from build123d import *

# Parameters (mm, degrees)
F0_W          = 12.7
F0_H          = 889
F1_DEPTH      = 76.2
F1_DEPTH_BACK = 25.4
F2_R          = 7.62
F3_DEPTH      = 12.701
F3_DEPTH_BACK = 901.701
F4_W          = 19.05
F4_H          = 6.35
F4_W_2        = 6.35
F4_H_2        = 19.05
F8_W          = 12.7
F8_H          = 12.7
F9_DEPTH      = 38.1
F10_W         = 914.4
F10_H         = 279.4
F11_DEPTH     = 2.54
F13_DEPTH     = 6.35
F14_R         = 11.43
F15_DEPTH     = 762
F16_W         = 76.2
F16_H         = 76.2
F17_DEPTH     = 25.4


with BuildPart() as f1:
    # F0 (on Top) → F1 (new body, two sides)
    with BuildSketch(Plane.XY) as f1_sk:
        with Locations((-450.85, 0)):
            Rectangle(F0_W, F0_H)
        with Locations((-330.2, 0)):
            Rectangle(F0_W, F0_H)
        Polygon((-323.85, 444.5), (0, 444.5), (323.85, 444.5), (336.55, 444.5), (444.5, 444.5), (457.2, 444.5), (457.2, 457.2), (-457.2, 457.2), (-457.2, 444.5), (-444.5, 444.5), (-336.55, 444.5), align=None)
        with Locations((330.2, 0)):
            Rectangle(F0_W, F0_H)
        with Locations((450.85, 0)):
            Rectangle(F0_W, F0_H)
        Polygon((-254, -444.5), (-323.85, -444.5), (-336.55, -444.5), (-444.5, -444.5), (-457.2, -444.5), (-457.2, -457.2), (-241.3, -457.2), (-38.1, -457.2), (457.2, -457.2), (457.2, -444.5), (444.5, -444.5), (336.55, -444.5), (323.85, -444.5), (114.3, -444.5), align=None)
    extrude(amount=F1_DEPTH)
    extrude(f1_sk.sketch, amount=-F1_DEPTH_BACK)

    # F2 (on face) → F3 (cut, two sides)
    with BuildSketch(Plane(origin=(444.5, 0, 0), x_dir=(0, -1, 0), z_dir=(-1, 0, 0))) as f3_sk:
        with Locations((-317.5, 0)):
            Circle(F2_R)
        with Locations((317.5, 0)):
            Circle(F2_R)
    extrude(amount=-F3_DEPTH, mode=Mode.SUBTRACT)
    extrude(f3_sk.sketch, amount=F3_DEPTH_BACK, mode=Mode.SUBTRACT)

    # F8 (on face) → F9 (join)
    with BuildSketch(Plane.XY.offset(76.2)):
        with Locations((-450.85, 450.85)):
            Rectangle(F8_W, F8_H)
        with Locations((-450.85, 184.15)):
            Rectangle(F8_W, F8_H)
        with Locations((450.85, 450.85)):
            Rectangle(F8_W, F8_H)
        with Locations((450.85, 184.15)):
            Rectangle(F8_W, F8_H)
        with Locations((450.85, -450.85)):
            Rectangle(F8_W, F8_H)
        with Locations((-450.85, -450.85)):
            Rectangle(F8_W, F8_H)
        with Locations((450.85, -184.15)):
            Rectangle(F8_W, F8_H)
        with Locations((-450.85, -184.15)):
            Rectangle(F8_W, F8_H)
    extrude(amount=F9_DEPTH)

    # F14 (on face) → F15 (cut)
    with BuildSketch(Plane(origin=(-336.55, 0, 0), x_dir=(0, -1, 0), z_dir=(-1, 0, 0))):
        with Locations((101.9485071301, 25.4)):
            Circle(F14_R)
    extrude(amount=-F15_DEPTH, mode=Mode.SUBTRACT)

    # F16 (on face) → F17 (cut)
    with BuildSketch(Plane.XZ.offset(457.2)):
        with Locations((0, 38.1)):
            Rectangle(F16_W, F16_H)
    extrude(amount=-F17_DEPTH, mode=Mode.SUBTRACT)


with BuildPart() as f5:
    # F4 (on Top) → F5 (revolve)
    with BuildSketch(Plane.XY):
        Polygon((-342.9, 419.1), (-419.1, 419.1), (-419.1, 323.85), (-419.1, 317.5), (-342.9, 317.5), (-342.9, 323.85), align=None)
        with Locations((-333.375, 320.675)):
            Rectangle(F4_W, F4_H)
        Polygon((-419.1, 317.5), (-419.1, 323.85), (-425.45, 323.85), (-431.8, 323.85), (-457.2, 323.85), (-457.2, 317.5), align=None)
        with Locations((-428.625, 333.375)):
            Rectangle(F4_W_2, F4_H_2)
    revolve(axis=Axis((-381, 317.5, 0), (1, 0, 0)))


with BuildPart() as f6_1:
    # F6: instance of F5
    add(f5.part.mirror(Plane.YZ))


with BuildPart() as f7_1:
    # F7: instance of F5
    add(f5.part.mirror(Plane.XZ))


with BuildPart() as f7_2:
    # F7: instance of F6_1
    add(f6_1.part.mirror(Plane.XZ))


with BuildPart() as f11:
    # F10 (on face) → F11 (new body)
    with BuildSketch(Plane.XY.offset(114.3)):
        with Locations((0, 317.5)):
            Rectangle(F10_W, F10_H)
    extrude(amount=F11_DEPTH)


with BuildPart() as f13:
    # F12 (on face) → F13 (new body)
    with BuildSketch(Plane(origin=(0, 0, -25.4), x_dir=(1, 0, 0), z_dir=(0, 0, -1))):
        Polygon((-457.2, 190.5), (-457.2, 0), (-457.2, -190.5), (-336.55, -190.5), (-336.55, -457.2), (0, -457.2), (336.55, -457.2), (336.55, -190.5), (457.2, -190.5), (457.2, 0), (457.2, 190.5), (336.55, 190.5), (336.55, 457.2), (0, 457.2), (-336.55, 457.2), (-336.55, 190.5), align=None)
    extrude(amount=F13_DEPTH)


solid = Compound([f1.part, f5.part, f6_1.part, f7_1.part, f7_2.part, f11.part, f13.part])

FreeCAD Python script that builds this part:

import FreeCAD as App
import Part
import Sketcher
Q = App.Units.Quantity

doc = App.newDocument("Part")
body = doc.addObject("PartDesign::Body", "Body")

# Sketch on XY plane
sketch1 = body.newObject("Sketcher::SketchObject", "Sketch")
sketch1.AttachmentSupport = (doc.getObject("XY_Plane"), [""])
sketch1.MapMode = "FlatFace"
sketch1.addGeometry(Part.LineSegment(App.Vector(457.2, 457.2, 0), App.Vector(-457.2, 457.2, 0)), False)
sketch1.addGeometry(Part.LineSegment(App.Vector(-457.2, 457.2, 0), App.Vector(-457.2, -457.2, 0)), False)
sketch1.addGeometry(Part.LineSegment(App.Vector(-457.2, -457.2, 0), App.Vector(457.2, -457.2, 0)), False)
sketch1.addGeometry(Part.LineSegment(App.Vector(457.2, -457.2, 0), App.Vector(457.2, 457.2, 0)), False)
sketch1.addGeometry(Part.LineSegment(App.Vector(-444.5, -444.5, 0), App.Vector(-444.5, 444.5, 0)), False)
sketch1.addGeometry(Part.LineSegment(App.Vector(-444.5, 444.5, 0), App.Vector(-336.55, 444.5, 0)), False)
sketch1.addGeometry(Part.LineSegment(App.Vector(-336.55, 444.5, 0), App.Vector(-336.55, -444.5, 0)), False)
sketch1.addGeometry(Part.LineSegment(App.Vector(-336.55, -444.5, 0), App.Vector(-444.5, -444.5, 0)), False)
sketch1.addGeometry(Part.LineSegment(App.Vector(-323.85, -444.5, 0), App.Vector(-323.85, 444.5, 0)), False)
sketch1.addGeometry(Part.LineSegment(App.Vector(-323.85, 444.5, 0), App.Vector(323.85, 444.5, 0)), False)
sketch1.addGeometry(Part.LineSegment(App.Vector(323.85, 444.5, 0), App.Vector(323.85, -444.5, 0)), False)
sketch1.addGeometry(Part.LineSegment(App.Vector(323.85, -444.5, 0), App.Vector(-323.85, -444.5, 0)), False)
sketch1.addGeometry(Part.LineSegment(App.Vector(336.55, -444.5, 0), App.Vector(336.55, 444.5, 0)), False)
sketch1.addGeometry(Part.LineSegment(App.Vector(336.55, 444.5, 0), App.Vector(444.5, 444.5, 0)), False)
sketch1.addGeometry(Part.LineSegment(App.Vector(444.5, 444.5, 0), App.Vector(444.5, -444.5, 0)), False)
sketch1.addGeometry(Part.LineSegment(App.Vector(444.5, -444.5, 0), App.Vector(336.55, -444.5, 0)), False)
sketch1.addConstraint(Sketcher.Constraint("Coincident", 0, 2, 1, 1))
sketch1.addConstraint(Sketcher.Constraint("Coincident", 1, 2, 2, 1))
sketch1.addConstraint(Sketcher.Constraint("Coincident", 2, 2, 3, 1))
sketch1.addConstraint(Sketcher.Constraint("Coincident", 3, 2, 0, 1))
sketch1.addConstraint(Sketcher.Constraint("Coincident", 4, 2, 5, 1))
sketch1.addConstraint(Sketcher.Constraint("Coincident", 5, 2, 6, 1))
sketch1.addConstraint(Sketcher.Constraint("Coincident", 6, 2, 7, 1))
sketch1.addConstraint(Sketcher.Constraint("Coincident", 7, 2, 4, 1))
sketch1.addConstraint(Sketcher.Constraint("Coincident", 8, 2, 9, 1))
sketch1.addConstraint(Sketcher.Constraint("Coincident", 9, 2, 10, 1))
sketch1.addConstraint(Sketcher.Constraint("Coincident", 10, 2, 11, 1))
sketch1.addConstraint(Sketcher.Constraint("Coincident", 11, 2, 8, 1))
sketch1.addConstraint(Sketcher.Constraint("Coincident", 12, 2, 13, 1))
sketch1.addConstraint(Sketcher.Constraint("Coincident", 13, 2, 14, 1))
sketch1.addConstraint(Sketcher.Constraint("Coincident", 14, 2, 15, 1))
sketch1.addConstraint(Sketcher.Constraint("Coincident", 15, 2, 12, 1))
sketch1.addConstraint(Sketcher.Constraint("Horizontal", 0))
sketch1.addConstraint(Sketcher.Constraint("Vertical", 1))
sketch1.addConstraint(Sketcher.Constraint("Horizontal", 2))
sketch1.addConstraint(Sketcher.Constraint("Vertical", 3))
sketch1.addConstraint(Sketcher.Constraint("Vertical", 4))
sketch1.addConstraint(Sketcher.Constraint("Horizontal", 5))
sketch1.addConstraint(Sketcher.Constraint("Vertical", 6))
sketch1.addConstraint(Sketcher.Constraint("Horizontal", 7))
sketch1.addConstraint(Sketcher.Constraint("Vertical", 8))
sketch1.addConstraint(Sketcher.Constraint("Horizontal", 9))
sketch1.addConstraint(Sketcher.Constraint("Vertical", 10))
sketch1.addConstraint(Sketcher.Constraint("Horizontal", 11))
sketch1.addConstraint(Sketcher.Constraint("Vertical", 12))
sketch1.addConstraint(Sketcher.Constraint("Horizontal", 13))
sketch1.addConstraint(Sketcher.Constraint("Vertical", 14))
sketch1.addConstraint(Sketcher.Constraint("Horizontal", 15))
sketch1.addConstraint(Sketcher.Constraint("Symmetric", 0, 2, 2, 2, -1, 1))
sketch1.addConstraint(Sketcher.Constraint("Symmetric", 8, 2, 10, 2, -1, 1))
sketch1.addConstraint(Sketcher.Constraint("Symmetric", 6, 2, 12, 2, -1, 1))
sketch1.addConstraint(Sketcher.Constraint("Symmetric", 4, 2, 14, 2, -1, 1))
sketch1.addConstraint(Sketcher.Constraint("Horizontal", 5, 2, 8, 2))
sketch1.addConstraint(Sketcher.Constraint("Horizontal", 7, 2, 10, 2))
sketch1.addConstraint(Sketcher.Constraint("Equal", 2, 1))
sketch1.addConstraint(Sketcher.Constraint("DistanceX", 0, 2, 0, 1, Q("36 in")))
sketch1.addConstraint(Sketcher.Constraint("DistanceY", 4, 1, 4, 2, Q("35 in")))
sketch1.addConstraint(Sketcher.Constraint("DistanceX", 9, 1, 9, 2, Q("25.5 in")))
sketch1.addConstraint(Sketcher.Constraint("DistanceX", 5, 2, 9, 2, Q("26 in")))
sketch1.addConstraint(Sketcher.Constraint("DistanceX", 7, 2, 14, 2, Q("35 in")))
pad1 = body.newObject("PartDesign::Pad", "Pad")
pad1.Profile = sketch1
pad1.Type = "TwoLengths"
pad1.Length = Q("3 in")
pad1.Length2 = Q("1 in")

# Sketch on YZ plane
sketch2 = body.newObject("Sketcher::SketchObject", "Sketch001")
sketch2.AttachmentSupport = (doc.getObject("YZ_Plane"), [""])
sketch2.MapMode = "FlatFace"
sketch2.AttachmentOffset = App.Placement(App.Vector(0, 0, 17.5 * 25.4), App.Rotation())
sketch2.addGeometry(Part.Circle(App.Vector(317.5, 0, 0), App.Vector(0, 0, 1), 7.62), False)
sketch2.addGeometry(Part.Circle(App.Vector(-317.5, 0, 0), App.Vector(0, 0, 1), 7.62), False)
sketch2.addConstraint(Sketcher.Constraint("Equal", 0, 1))
sketch2.addConstraint(Sketcher.Constraint("Symmetric", 0, 3, 1, 3, -1, 1))
sketch2.addConstraint(Sketcher.Constraint("PointOnObject", 0, 3, -1))
sketch2.addConstraint(Sketcher.Constraint("Diameter", 0, Q("0.6 in")))
sketch2.addConstraint(Sketcher.Constraint("DistanceX", 1, 3, 0, 3, Q("25 in")))
pocket1 = body.newObject("PartDesign::Pocket", "Pocket")
pocket1.Profile = sketch2
pocket1.Type = "ThroughAll"
pocket1.Midplane = True

# Sketch on XY plane
sketch3 = body.newObject("Sketcher::SketchObject", "Sketch002")
sketch3.AttachmentSupport = (doc.getObject("XY_Plane"), [""])
sketch3.MapMode = "FlatFace"
sketch3.AttachmentOffset = App.Placement(App.Vector(0, 0, 3 * 25.4), App.Rotation())
sketch3.addGeometry(Part.LineSegment(App.Vector(-457.2, 457.2, 0), App.Vector(-457.2, 444.5, 0)), False)
sketch3.addGeometry(Part.LineSegment(App.Vector(-457.2, 444.5, 0), App.Vector(-444.5, 444.5, 0)), False)
sketch3.addGeometry(Part.LineSegment(App.Vector(-444.5, 444.5, 0), App.Vector(-444.5, 457.2, 0)), False)
sketch3.addGeometry(Part.LineSegment(App.Vector(-444.5, 457.2, 0), App.Vector(-457.2, 457.2, 0)), False)
sketch3.addGeometry(Part.LineSegment(App.Vector(-457.2, 190.5, 0), App.Vector(-457.2, 177.8, 0)), False)
sketch3.addGeometry(Part.LineSegment(App.Vector(-457.2, 177.8, 0), App.Vector(-444.5, 177.8, 0)), False)
sketch3.addGeometry(Part.LineSegment(App.Vector(-444.5, 177.8, 0), App.Vector(-444.5, 190.5, 0)), False)
sketch3.addGeometry(Part.LineSegment(App.Vector(-444.5, 190.5, 0), App.Vector(-457.2, 190.5, 0)), False)
sketch3.addGeometry(Part.LineSegment(App.Vector(444.5, 457.2, 0), App.Vector(444.5, 444.5, 0)), False)
sketch3.addGeometry(Part.LineSegment(App.Vector(444.5, 444.5, 0), App.Vector(457.2, 444.5, 0)), False)
sketch3.addGeometry(Part.LineSegment(App.Vector(457.2, 444.5, 0), App.Vector(457.2, 457.2, 0)), False)
sketch3.addGeometry(Part.LineSegment(App.Vector(457.2, 457.2, 0), App.Vector(444.5, 457.2, 0)), False)
sketch3.addGeometry(Part.LineSegment(App.Vector(444.5, 190.5, 0), App.Vector(444.5, 177.8, 0)), False)
sketch3.addGeometry(Part.LineSegment(App.Vector(444.5, 177.8, 0), App.Vector(457.2, 177.8, 0)), False)
sketch3.addGeometry(Part.LineSegment(App.Vector(457.2, 177.8, 0), App.Vector(457.2, 190.5, 0)), False)
sketch3.addGeometry(Part.LineSegment(App.Vector(457.2, 190.5, 0), App.Vector(444.5, 190.5, 0)), False)
sketch3.addGeometry(Part.LineSegment(App.Vector(444.5, -444.5, 0), App.Vector(444.5, -457.2, 0)), False)
sketch3.addGeometry(Part.LineSegment(App.Vector(444.5, -457.2, 0), App.Vector(457.2, -457.2, 0)), False)
sketch3.addGeometry(Part.LineSegment(App.Vector(457.2, -457.2, 0), App.Vector(457.2, -444.5, 0)), False)
sketch3.addGeometry(Part.LineSegment(App.Vector(457.2, -444.5, 0), App.Vector(444.5, -444.5, 0)), False)
sketch3.addGeometry(Part.LineSegment(App.Vector(-457.2, -444.5, 0), App.Vector(-457.2, -457.2, 0)), False)
sketch3.addGeometry(Part.LineSegment(App.Vector(-457.2, -457.2, 0), App.Vector(-444.5, -457.2, 0)), False)
sketch3.addGeometry(Part.LineSegment(App.Vector(-444.5, -457.2, 0), App.Vector(-444.5, -444.5, 0)), False)
sketch3.addGeometry(Part.LineSegment(App.Vector(-444.5, -444.5, 0), App.Vector(-457.2, -444.5, 0)), False)
sketch3.addGeometry(Part.LineSegment(App.Vector(444.5, -177.8, 0), App.Vector(444.5, -190.5, 0)), False)
sketch3.addGeometry(Part.LineSegment(App.Vector(444.5, -190.5, 0), App.Vector(457.2, -190.5, 0)), False)
sketch3.addGeometry(Part.LineSegment(App.Vector(457.2, -190.5, 0), App.Vector(457.2, -177.8, 0)), False)
sketch3.addGeometry(Part.LineSegment(App.Vector(457.2, -177.8, 0), App.Vector(444.5, -177.8, 0)), False)
sketch3.addGeometry(Part.LineSegment(App.Vector(-457.2, -177.8, 0), App.Vector(-457.2, -190.5, 0)), False)
sketch3.addGeometry(Part.LineSegment(App.Vector(-457.2, -190.5, 0), App.Vector(-444.5, -190.5, 0)), False)
sketch3.addGeometry(Part.LineSegment(App.Vector(-444.5, -190.5, 0), App.Vector(-444.5, -177.8, 0)), False)
sketch3.addGeometry(Part.LineSegment(App.Vector(-444.5, -177.8, 0), App.Vector(-457.2, -177.8, 0)), False)
sketch3.addConstraint(Sketcher.Constraint("Coincident", 0, 2, 1, 1))
sketch3.addConstraint(Sketcher.Constraint("Coincident", 1, 2, 2, 1))
sketch3.addConstraint(Sketcher.Constraint("Coincident", 2, 2, 3, 1))
sketch3.addConstraint(Sketcher.Constraint("Coincident", 3, 2, 0, 1))
sketch3.addConstraint(Sketcher.Constraint("Coincident", 4, 2, 5, 1))
sketch3.addConstraint(Sketcher.Constraint("Coincident", 5, 2, 6, 1))
sketch3.addConstraint(Sketcher.Constraint("Coincident", 6, 2, 7, 1))
sketch3.addConstraint(Sketcher.Constraint("Coincident", 7, 2, 4, 1))
sketch3.addConstraint(Sketcher.Constraint("Coincident", 8, 2, 9, 1))
sketch3.addConstraint(Sketcher.Constraint("Coincident", 9, 2, 10, 1))
sketch3.addConstraint(Sketcher.Constraint("Coincident", 10, 2, 11, 1))
sketch3.addConstraint(Sketcher.Constraint("Coincident", 11, 2, 8, 1))
sketch3.addConstraint(Sketcher.Constraint("Coincident", 12, 2, 13, 1))
sketch3.addConstraint(Sketcher.Constraint("Coincident", 13, 2, 14, 1))
sketch3.addConstraint(Sketcher.Constraint("Coincident", 14, 2, 15, 1))
sketch3.addConstraint(Sketcher.Constraint("Coincident", 15, 2, 12, 1))
sketch3.addConstraint(Sketcher.Constraint("Coincident", 16, 2, 17, 1))
sketch3.addConstraint(Sketcher.Constraint("Coincident", 17, 2, 18, 1))
sketch3.addConstraint(Sketcher.Constraint("Coincident", 18, 2, 19, 1))
sketch3.addConstraint(Sketcher.Constraint("Coincident", 19, 2, 16, 1))
sketch3.addConstraint(Sketcher.Constraint("Coincident", 20, 2, 21, 1))
sketch3.addConstraint(Sketcher.Constraint("Coincident", 21, 2, 22, 1))
sketch3.addConstraint(Sketcher.Constraint("Coincident", 22, 2, 23, 1))
sketch3.addConstraint(Sketcher.Constraint("Coincident", 23, 2, 20, 1))
sketch3.addConstraint(Sketcher.Constraint("Coincident", 24, 2, 25, 1))
sketch3.addConstraint(Sketcher.Constraint("Coincident", 25, 2, 26, 1))
sketch3.addConstraint(Sketcher.Constraint("Coincident", 26, 2, 27, 1))
sketch3.addConstraint(Sketcher.Constraint("Coincident", 27, 2, 24, 1))
sketch3.addConstraint(Sketcher.Constraint("Coincident", 28, 2, 29, 1))
sketch3.addConstraint(Sketcher.Constraint("Coincident", 29, 2, 30, 1))
sketch3.addConstraint(Sketcher.Constraint("Coincident", 30, 2, 31, 1))
sketch3.addConstraint(Sketcher.Constraint("Coincident", 31, 2, 28, 1))
sketch3.addConstraint(Sketcher.Constraint("Vertical", 0))
sketch3.addConstraint(Sketcher.Constraint("Horizontal", 1))
sketch3.addConstraint(Sketcher.Constraint("Vertical", 2))
sketch3.addConstraint(Sketcher.Constraint("Horizontal", 3))
sketch3.addConstraint(Sketcher.Constraint("Vertical", 4))
sketch3.addConstraint(Sketcher.Constraint("Horizontal", 5))
sketch3.addConstraint(Sketcher.Constraint("Vertical", 6))
sketch3.addConstraint(Sketcher.Constraint("Horizontal", 7))
sketch3.addConstraint(Sketcher.Constraint("Vertical", 8))
sketch3.addConstraint(Sketcher.Constraint("Horizontal", 9))
sketch3.addConstraint(Sketcher.Constraint("Vertical", 10))
sketch3.addConstraint(Sketcher.Constraint("Horizontal", 11))
sketch3.addConstraint(Sketcher.Constraint("Vertical", 12))
sketch3.addConstraint(Sketcher.Constraint("Horizontal", 13))
sketch3.addConstraint(Sketcher.Constraint("Vertical", 14))
sketch3.addConstraint(Sketcher.Constraint("Horizontal", 15))
sketch3.addConstraint(Sketcher.Constraint("Vertical", 16))
sketch3.addConstraint(Sketcher.Constraint("Horizontal", 17))
sketch3.addConstraint(Sketcher.Constraint("Vertical", 18))
sketch3.addConstraint(Sketcher.Constraint("Horizontal", 19))
sketch3.addConstraint(Sketcher.Constraint("Vertical", 20))
sketch3.addConstraint(Sketcher.Constraint("Horizontal", 21))
sketch3.addConstraint(Sketcher.Constraint("Vertical", 22))
sketch3.addConstraint(Sketcher.Constraint("Horizontal", 23))
sketch3.addConstraint(Sketcher.Constraint("Vertical", 24))
sketch3.addConstraint(Sketcher.Constraint("Horizontal", 25))
sketch3.addConstraint(Sketcher.Constraint("Vertical", 26))
sketch3.addConstraint(Sketcher.Constraint("Horizontal", 27))
sketch3.addConstraint(Sketcher.Constraint("Vertical", 28))
sketch3.addConstraint(Sketcher.Constraint("Horizontal", 29))
sketch3.addConstraint(Sketcher.Constraint("Vertical", 30))
sketch3.addConstraint(Sketcher.Constraint("Horizontal", 31))
sketch3.addConstraint(Sketcher.Constraint("Symmetric", 2, 2, 16, 2, -1, 1))
sketch3.addConstraint(Sketcher.Constraint("Symmetric", 0, 2, 18, 2, -1, 1))
sketch3.addConstraint(Sketcher.Constraint("Symmetric", 10, 2, 20, 2, -1, 1))
sketch3.addConstraint(Sketcher.Constraint("Symmetric", 8, 2, 22, 2, -1, 1))
sketch3.addConstraint(Sketcher.Constraint("Symmetric", 6, 2, 24, 2, -1, 1))
sketch3.addConstraint(Sketcher.Constraint("Symmetric", 4, 2, 26, 2, -1, 1))
sketch3.addConstraint(Sketcher.Constraint("Symmetric", 14, 2, 28, 2, -1, 1))
sketch3.addConstraint(Sketcher.Constraint("Symmetric", 12, 2, 30, 2, -1, 1))
sketch3.addConstraint(Sketcher.Constraint("Symmetric", 1, 2, 8, 2, -2))
sketch3.addConstraint(Sketcher.Constraint("Symmetric", 3, 2, 10, 2, -2))
sketch3.addConstraint(Sketcher.Constraint("Symmetric", 5, 2, 12, 2, -2))
sketch3.addConstraint(Sketcher.Constraint("Symmetric", 7, 2, 14, 2, -2))
sketch3.addConstraint(Sketcher.Constraint("Vertical", 3, 2, 4, 2))
sketch3.addConstraint(Sketcher.Constraint("Vertical", 2, 2, 5, 2))
sketch3.addConstraint(Sketcher.Constraint("Equal", 31, 0))
sketch3.addConstraint(Sketcher.Constraint("Equal", 2, 4))
sketch3.addConstraint(Sketcher.Constraint("DistanceX", 1, 1, 1, 2, Q("0.5 in")))
sketch3.addConstraint(Sketcher.Constraint("DistanceX", 0, 2, -1, 1, Q("18 in")))
sketch3.addConstraint(Sketcher.Constraint("DistanceY", -1, 1, 2, 2, Q("18 in")))
sketch3.addConstraint(Sketcher.Constraint("DistanceY", -1, 1, 4, 2, Q("7 in")))
pad2 = body.newObject("PartDesign::Pad", "Pad001")
pad2.Profile = sketch3
pad2.Length = Q("1.5 in")

# Sketch on YZ plane
sketch4 = body.newObject("Sketcher::SketchObject", "Sketch003")
sketch4.AttachmentSupport = (doc.getObject("YZ_Plane"), [""])
sketch4.MapMode = "FlatFace"
sketch4.AttachmentOffset = App.Placement(App.Vector(0, 0, -13.25 * 25.4), App.Rotation())
sketch4.addGeometry(Part.Circle(App.Vector(-101.948507, 25.4, 0), App.Vector(0, 0, 1), 11.43), False)
sketch4.addConstraint(Sketcher.Constraint("Diameter", 0, Q("0.9 in")))
sketch4.addConstraint(Sketcher.Constraint("DistanceY", -1, 1, 0, 3, Q("1 in")))
sketch4.addConstraint(Sketcher.Constraint("DistanceX", 0, 3, -1, 1, 101.948507))
pocket2 = body.newObject("PartDesign::Pocket", "Pocket001")
pocket2.Profile = sketch4
pocket2.Length = Q("30 in")
pocket2.Reversed = True

# Sketch on XZ plane
sketch5 = body.newObject("Sketcher::SketchObject", "Sketch004")
sketch5.AttachmentSupport = (doc.getObject("XZ_Plane"), [""])
sketch5.MapMode = "FlatFace"
sketch5.AttachmentOffset = App.Placement(App.Vector(0, 0, 18 * 25.4), App.Rotation())
sketch5.addGeometry(Part.LineSegment(App.Vector(-38.1, 76.2, 0), App.Vector(-38.1, 0, 0)), False)
sketch5.addGeometry(Part.LineSegment(App.Vector(-38.1, 0, 0), App.Vector(38.1, 0, 0)), False)
sketch5.addGeometry(Part.LineSegment(App.Vector(38.1, 0, 0), App.Vector(38.1, 76.2, 0)), False)
sketch5.addGeometry(Part.LineSegment(App.Vector(38.1, 76.2, 0), App.Vector(-38.1, 76.2, 0)), False)
sketch5.addConstraint(Sketcher.Constraint("Coincident", 0, 2, 1, 1))
sketch5.addConstraint(Sketcher.Constraint("Coincident", 1, 2, 2, 1))
sketch5.addConstraint(Sketcher.Constraint("Coincident", 2, 2, 3, 1))
sketch5.addConstraint(Sketcher.Constraint("Coincident", 3, 2, 0, 1))
sketch5.addConstraint(Sketcher.Constraint("Vertical", 0))
sketch5.addConstraint(Sketcher.Constraint("Horizontal", 1))
sketch5.addConstraint(Sketcher.Constraint("Vertical", 2))
sketch5.addConstraint(Sketcher.Constraint("Horizontal", 3))
sketch5.addConstraint(Sketcher.Constraint("Symmetric", 0, 2, 1, 2, -1, 1))
sketch5.addConstraint(Sketcher.Constraint("Equal", 3, 0))
sketch5.addConstraint(Sketcher.Constraint("DistanceX", 1, 1, 1, 2, Q("3 in")))
pocket3 = body.newObject("PartDesign::Pocket", "Pocket002")
pocket3.Profile = sketch5
pocket3.Length = Q("1 in")
body2 = doc.addObject("PartDesign::Body", "Body001")

# Sketch on XY plane
sketch6 = body2.newObject("Sketcher::SketchObject", "Sketch005")
sketch6.AttachmentSupport = (doc.getObject("XY_Plane001"), [""])
sketch6.MapMode = "FlatFace"
sketch6.addGeometry(Part.LineSegment(App.Vector(-342.9, 419.1, 0), App.Vector(-419.1, 419.1, 0)), False)
sketch6.addGeometry(Part.LineSegment(App.Vector(-419.1, 419.1, 0), App.Vector(-419.1, 323.85, 0)), False)
sketch6.addGeometry(Part.LineSegment(App.Vector(-419.1, 323.85, 0), App.Vector(-425.45, 323.85, 0)), False)
sketch6.addGeometry(Part.LineSegment(App.Vector(-425.45, 323.85, 0), App.Vector(-425.45, 342.9, 0)), False)
sketch6.addGeometry(Part.LineSegment(App.Vector(-425.45, 342.9, 0), App.Vector(-431.8, 342.9, 0)), False)
sketch6.addGeometry(Part.LineSegment(App.Vector(-431.8, 342.9, 0), App.Vector(-431.8, 323.85, 0)), False)
sketch6.addGeometry(Part.LineSegment(App.Vector(-431.8, 323.85, 0), App.Vector(-457.2, 323.85, 0)), False)
sketch6.addGeometry(Part.LineSegment(App.Vector(-457.2, 323.85, 0), App.Vector(-457.2, 317.5, 0)), False)
sketch6.addGeometry(Part.LineSegment(App.Vector(-457.2, 317.5, 0), App.Vector(-323.85, 317.5, 0)), False)
sketch6.addGeometry(Part.LineSegment(App.Vector(-323.85, 317.5, 0), App.Vector(-323.85, 323.85, 0)), False)
sketch6.addGeometry(Part.LineSegment(App.Vector(-323.85, 323.85, 0), App.Vector(-342.9, 323.85, 0)), False)
sketch6.addGeometry(Part.LineSegment(App.Vector(-342.9, 323.85, 0), App.Vector(-342.9, 419.1, 0)), False)
sketch6.addGeometry(Part.LineSegment(App.Vector(-457.2, 317.5, 0), App.Vector(-323.85, 317.5, 0)), True)  # axis
sketch6.addConstraint(Sketcher.Constraint("Coincident", 0, 2, 1, 1))
sketch6.addConstraint(Sketcher.Constraint("Coincident", 1, 2, 2, 1))
sketch6.addConstraint(Sketcher.Constraint("Coincident", 2, 2, 3, 1))
sketch6.addConstraint(Sketcher.Constraint("Coincident", 3, 2, 4, 1))
sketch6.addConstraint(Sketcher.Constraint("Coincident", 4, 2, 5, 1))
sketch6.addConstraint(Sketcher.Constraint("Coincident", 5, 2, 6, 1))
sketch6.addConstraint(Sketcher.Constraint("Coincident", 6, 2, 7, 1))
sketch6.addConstraint(Sketcher.Constraint("Coincident", 7, 2, 8, 1))
sketch6.addConstraint(Sketcher.Constraint("Coincident", 8, 2, 9, 1))
sketch6.addConstraint(Sketcher.Constraint("Coincident", 9, 2, 10, 1))
sketch6.addConstraint(Sketcher.Constraint("Coincident", 10, 2, 11, 1))
sketch6.addConstraint(Sketcher.Constraint("Coincident", 11, 2, 0, 1))
sketch6.addConstraint(Sketcher.Constraint("Horizontal", 0))
sketch6.addConstraint(Sketcher.Constraint("Vertical", 1))
sketch6.addConstraint(Sketcher.Constraint("Horizontal", 2))
sketch6.addConstraint(Sketcher.Constraint("Vertical", 3))
sketch6.addConstraint(Sketcher.Constraint("Horizontal", 4))
sketch6.addConstraint(Sketcher.Constraint("Vertical", 5))
sketch6.addConstraint(Sketcher.Constraint("Horizontal", 6))
sketch6.addConstraint(Sketcher.Constraint("Vertical", 7))
sketch6.addConstraint(Sketcher.Constraint("Horizontal", 8))
sketch6.addConstraint(Sketcher.Constraint("Vertical", 9))
sketch6.addConstraint(Sketcher.Constraint("Horizontal", 10))
sketch6.addConstraint(Sketcher.Constraint("Vertical", 11))
sketch6.addConstraint(Sketcher.Constraint("Horizontal", 12))
sketch6.addConstraint(Sketcher.Constraint("Coincident", 12, 1, 7, 2))
sketch6.addConstraint(Sketcher.Constraint("Horizontal", 2, 2, 5, 2))
sketch6.addConstraint(Sketcher.Constraint("Horizontal", 6, 2, 9, 2))
sketch6.addConstraint(Sketcher.Constraint("Vertical", 9, 2, 12, 2))
sketch6.addConstraint(Sketcher.Constraint("Equal", 2, 4))
sketch6.addConstraint(Sketcher.Constraint("Equal", 10, 3))
sketch6.addConstraint(Sketcher.Constraint("Equal", 4, 7))
sketch6.addConstraint(Sketcher.Constraint("DistanceX", 0, 2, 0, 1, Q("3 in")))
sketch6.addConstraint(Sketcher.Constraint("DistanceX", 6, 2, 6, 1, Q("1 in")))
sketch6.addConstraint(Sketcher.Constraint("DistanceX", 4, 2, -1, 1, Q("17 in")))
sketch6.addConstraint(Sketcher.Constraint("DistanceY", 3, 2, 0, 2, Q("3 in")))
sketch6.addConstraint(Sketcher.Constraint("DistanceY", 7, 2, 4, 2, Q("1 in")))
sketch6.addConstraint(Sketcher.Constraint("DistanceX", 2, 2, 2, 1, Q("0.25 in")))
sketch6.addConstraint(Sketcher.Constraint("DistanceY", -1, 1, 0, 2, Q("16.5 in")))
revolution = body2.newObject("PartDesign::Revolution", "Revolution")
revolution.Profile = sketch6
revolution.ReferenceAxis = (sketch6, ["Axis0"])
revolution.Angle = 360
body3 = doc.addObject("PartDesign::Body", "Body002")
doc.recompute()

mirroring = doc.addObject("Part::Mirroring", "Mirroring")
mirroring.Source = body2
mirroring.Base = App.Vector(0, 0, 0)
mirroring.Normal = App.Vector(1, 0, 0)
body3.BaseFeature = mirroring
doc.recompute()
body4 = doc.addObject("PartDesign::Body", "Body003")
doc.recompute()

mirroring2 = doc.addObject("Part::Mirroring", "Mirroring001")
mirroring2.Source = body2
mirroring2.Base = App.Vector(0, 0, 0)
mirroring2.Normal = App.Vector(0, -1, 0)
body4.BaseFeature = mirroring2
doc.recompute()
body5 = doc.addObject("PartDesign::Body", "Body004")
doc.recompute()

mirroring3 = doc.addObject("Part::Mirroring", "Mirroring002")
mirroring3.Source = body3
mirroring3.Base = App.Vector(0, 0, 0)
mirroring3.Normal = App.Vector(0, -1, 0)
body5.BaseFeature = mirroring3
doc.recompute()
body6 = doc.addObject("PartDesign::Body", "Body005")

# Sketch on XY plane
sketch7 = body6.newObject("Sketcher::SketchObject", "Sketch006")
sketch7.AttachmentSupport = (doc.getObject("XY_Plane005"), [""])
sketch7.MapMode = "FlatFace"
sketch7.AttachmentOffset = App.Placement(App.Vector(0, 0, 4.5 * 25.4), App.Rotation())
sketch7.addGeometry(Part.LineSegment(App.Vector(-457.2, 457.2, 0), App.Vector(-457.2, 177.8, 0)), False)
sketch7.addGeometry(Part.LineSegment(App.Vector(-457.2, 177.8, 0), App.Vector(457.2, 177.8, 0)), False)
sketch7.addGeometry(Part.LineSegment(App.Vector(457.2, 177.8, 0), App.Vector(457.2, 457.2, 0)), False)
sketch7.addGeometry(Part.LineSegment(App.Vector(457.2, 457.2, 0), App.Vector(-457.2, 457.2, 0)), False)
sketch7.addConstraint(Sketcher.Constraint("Coincident", 0, 2, 1, 1))
sketch7.addConstraint(Sketcher.Constraint("Coincident", 1, 2, 2, 1))
sketch7.addConstraint(Sketcher.Constraint("Coincident", 2, 2, 3, 1))
sketch7.addConstraint(Sketcher.Constraint("Coincident", 3, 2, 0, 1))
sketch7.addConstraint(Sketcher.Constraint("Vertical", 0))
sketch7.addConstraint(Sketcher.Constraint("Horizontal", 1))
sketch7.addConstraint(Sketcher.Constraint("Vertical", 2))
sketch7.addConstraint(Sketcher.Constraint("Horizontal", 3))
sketch7.addConstraint(Sketcher.Constraint("DistanceX", 1, 1, 1, 2, Q("36 in")))
sketch7.addConstraint(Sketcher.Constraint("DistanceY", 0, 2, 0, 1, Q("11 in")))
sketch7.addConstraint(Sketcher.Constraint("DistanceX", 0, 2, -1, 1, Q("18 in")))
sketch7.addConstraint(Sketcher.Constraint("DistanceY", -1, 1, 0, 2, Q("7 in")))
pad3 = body6.newObject("PartDesign::Pad", "Pad002")
pad3.Profile = sketch7
pad3.Length = Q("0.1 in")
body7 = doc.addObject("PartDesign::Body", "Body006")

# Sketch on XY plane
sketch8 = body7.newObject("Sketcher::SketchObject", "Sketch007")
sketch8.AttachmentSupport = (doc.getObject("XY_Plane006"), [""])
sketch8.MapMode = "FlatFace"
sketch8.AttachmentOffset = App.Placement(App.Vector(0, 0, -1 * 25.4), App.Rotation())
sketch8.addGeometry(Part.LineSegment(App.Vector(-457.2, -190.5, 0), App.Vector(-457.2, 190.5, 0)), False)
sketch8.addGeometry(Part.LineSegment(App.Vector(-457.2, 190.5, 0), App.Vector(-336.55, 190.5, 0)), False)
sketch8.addGeometry(Part.LineSegment(App.Vector(-336.55, 190.5, 0), App.Vector(-336.55, 457.2, 0)), False)
sketch8.addGeometry(Part.LineSegment(App.Vector(-336.55, 457.2, 0), App.Vector(336.55, 457.2, 0)), False)
sketch8.addGeometry(Part.LineSegment(App.Vector(336.55, 457.2, 0), App.Vector(336.55, 190.5, 0)), False)
sketch8.addGeometry(Part.LineSegment(App.Vector(336.55, 190.5, 0), App.Vector(457.2, 190.5, 0)), False)
sketch8.addGeometry(Part.LineSegment(App.Vector(457.2, 190.5, 0), App.Vector(457.2, -190.5, 0)), False)
sketch8.addGeometry(Part.LineSegment(App.Vector(457.2, -190.5, 0), App.Vector(336.55, -190.5, 0)), False)
sketch8.addGeometry(Part.LineSegment(App.Vector(336.55, -190.5, 0), App.Vector(336.55, -457.2, 0)), False)
sketch8.addGeometry(Part.LineSegment(App.Vector(336.55, -457.2, 0), App.Vector(-336.55, -457.2, 0)), False)
sketch8.addGeometry(Part.LineSegment(App.Vector(-336.55, -457.2, 0), App.Vector(-336.55, -190.5, 0)), False)
sketch8.addGeometry(Part.LineSegment(App.Vector(-336.55, -190.5, 0), App.Vector(-457.2, -190.5, 0)), False)
sketch8.addConstraint(Sketcher.Constraint("Coincident", 0, 2, 1, 1))
sketch8.addConstraint(Sketcher.Constraint("Coincident", 1, 2, 2, 1))
sketch8.addConstraint(Sketcher.Constraint("Coincident", 2, 2, 3, 1))
sketch8.addConstraint(Sketcher.Constraint("Coincident", 3, 2, 4, 1))
sketch8.addConstraint(Sketcher.Constraint("Coincident", 4, 2, 5, 1))
sketch8.addConstraint(Sketcher.Constraint("Coincident", 5, 2, 6, 1))
sketch8.addConstraint(Sketcher.Constraint("Coincident", 6, 2, 7, 1))
sketch8.addConstraint(Sketcher.Constraint("Coincident", 7, 2, 8, 1))
sketch8.addConstraint(Sketcher.Constraint("Coincident", 8, 2, 9, 1))
sketch8.addConstraint(Sketcher.Constraint("Coincident", 9, 2, 10, 1))
sketch8.addConstraint(Sketcher.Constraint("Coincident", 10, 2, 11, 1))
sketch8.addConstraint(Sketcher.Constraint("Coincident", 11, 2, 0, 1))
sketch8.addConstraint(Sketcher.Constraint("Vertical", 0))
sketch8.addConstraint(Sketcher.Constraint("Horizontal", 1))
sketch8.addConstraint(Sketcher.Constraint("Vertical", 2))
sketch8.addConstraint(Sketcher.Constraint("Horizontal", 3))
sketch8.addConstraint(Sketcher.Constraint("Vertical", 4))
sketch8.addConstraint(Sketcher.Constraint("Horizontal", 5))
sketch8.addConstraint(Sketcher.Constraint("Vertical", 6))
sketch8.addConstraint(Sketcher.Constraint("Horizontal", 7))
sketch8.addConstraint(Sketcher.Constraint("Vertical", 8))
sketch8.addConstraint(Sketcher.Constraint("Horizontal", 9))
sketch8.addConstraint(Sketcher.Constraint("Vertical", 10))
sketch8.addConstraint(Sketcher.Constraint("Horizontal", 11))
sketch8.addConstraint(Sketcher.Constraint("Symmetric", 0, 2, 6, 2, -1, 1))
sketch8.addConstraint(Sketcher.Constraint("Symmetric", 2, 2, 8, 2, -1, 1))
sketch8.addConstraint(Sketcher.Constraint("Symmetric", 4, 2, 10, 2, -1, 1))
sketch8.addConstraint(Sketcher.Constraint("Symmetric", 1, 2, 4, 2, -2))
sketch8.addConstraint(Sketcher.Constraint("DistanceY", 0, 1, 0, 2, Q("15 in")))
sketch8.addConstraint(Sketcher.Constraint("DistanceX", 3, 1, 3, 2, Q("26.5 in")))
sketch8.addConstraint(Sketcher.Constraint("DistanceY", 2, 1, 2, 2, Q("10.5 in")))
sketch8.addConstraint(Sketcher.Constraint("DistanceX", 0, 2, -1, 1, Q("18 in")))
pad4 = body7.newObject("PartDesign::Pad", "Pad003")
pad4.Profile = sketch8
pad4.Length = Q("0.25 in")
pad4.Reversed = True
mirroring.Visibility = False
mirroring2.Visibility = False
mirroring3.Visibility = False

doc.recompute()
